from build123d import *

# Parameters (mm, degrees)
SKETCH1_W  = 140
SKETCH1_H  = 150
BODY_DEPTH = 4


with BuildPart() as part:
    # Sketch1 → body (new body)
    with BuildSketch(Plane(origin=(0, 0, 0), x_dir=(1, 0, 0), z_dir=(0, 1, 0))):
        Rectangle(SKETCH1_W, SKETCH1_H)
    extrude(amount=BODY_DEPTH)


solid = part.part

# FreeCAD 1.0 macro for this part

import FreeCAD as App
import Part
import Sketcher
from FreeCAD import Vector


def add_polygon(sketch, points):
    """Adds a closed chain of lines whose ends are joined by coincident constraints."""
    first, n = sketch.GeometryCount, len(points)
    for a, b in zip(points, points[1:] + points[:1]):
        sketch.addGeometry(Part.LineSegment(App.Vector(*a, 0), App.Vector(*b, 0)), False)
    for i in range(n):
        sketch.addConstraint(Sketcher.Constraint("Coincident", first + i, 2, first + (i + 1) % n, 1))

doc = App.newDocument("Part")
body = doc.addObject("PartDesign::Body", "Body")

# Sketch on XZ plane
sketch1 = body.newObject("Sketcher::SketchObject", "Sketch")
sketch1.AttachmentSupport = (doc.getObject("XZ_Plane"), [""])
sketch1.MapMode = "FlatFace"
add_polygon(sketch1, [(-70, -75), (-70, 75), (70, 75), (70, -75)])  # lines 0-3
sketch1.addConstraint(Sketcher.Constraint("Vertical", 0))
sketch1.addConstraint(Sketcher.Constraint("Horizontal", 1))
sketch1.addConstraint(Sketcher.Constraint("Vertical", 2))
sketch1.addConstraint(Sketcher.Constraint("Horizontal", 3))
sketch1.addConstraint(Sketcher.Constraint("Symmetric", 0, 2, 2, 2, -1, 1))
sketch1.addConstraint(Sketcher.Constraint("DistanceX", 1, 1, 1, 2, 140.0))
sketch1.addConstraint(Sketcher.Constraint("DistanceY", 0, 1, 0, 2, 150.0))
pad1 = body.newObject("PartDesign::Pad", "Pad")
pad1.Profile = sketch1
pad1.Length = 4
pad1.Reversed = True

doc.recompute()
